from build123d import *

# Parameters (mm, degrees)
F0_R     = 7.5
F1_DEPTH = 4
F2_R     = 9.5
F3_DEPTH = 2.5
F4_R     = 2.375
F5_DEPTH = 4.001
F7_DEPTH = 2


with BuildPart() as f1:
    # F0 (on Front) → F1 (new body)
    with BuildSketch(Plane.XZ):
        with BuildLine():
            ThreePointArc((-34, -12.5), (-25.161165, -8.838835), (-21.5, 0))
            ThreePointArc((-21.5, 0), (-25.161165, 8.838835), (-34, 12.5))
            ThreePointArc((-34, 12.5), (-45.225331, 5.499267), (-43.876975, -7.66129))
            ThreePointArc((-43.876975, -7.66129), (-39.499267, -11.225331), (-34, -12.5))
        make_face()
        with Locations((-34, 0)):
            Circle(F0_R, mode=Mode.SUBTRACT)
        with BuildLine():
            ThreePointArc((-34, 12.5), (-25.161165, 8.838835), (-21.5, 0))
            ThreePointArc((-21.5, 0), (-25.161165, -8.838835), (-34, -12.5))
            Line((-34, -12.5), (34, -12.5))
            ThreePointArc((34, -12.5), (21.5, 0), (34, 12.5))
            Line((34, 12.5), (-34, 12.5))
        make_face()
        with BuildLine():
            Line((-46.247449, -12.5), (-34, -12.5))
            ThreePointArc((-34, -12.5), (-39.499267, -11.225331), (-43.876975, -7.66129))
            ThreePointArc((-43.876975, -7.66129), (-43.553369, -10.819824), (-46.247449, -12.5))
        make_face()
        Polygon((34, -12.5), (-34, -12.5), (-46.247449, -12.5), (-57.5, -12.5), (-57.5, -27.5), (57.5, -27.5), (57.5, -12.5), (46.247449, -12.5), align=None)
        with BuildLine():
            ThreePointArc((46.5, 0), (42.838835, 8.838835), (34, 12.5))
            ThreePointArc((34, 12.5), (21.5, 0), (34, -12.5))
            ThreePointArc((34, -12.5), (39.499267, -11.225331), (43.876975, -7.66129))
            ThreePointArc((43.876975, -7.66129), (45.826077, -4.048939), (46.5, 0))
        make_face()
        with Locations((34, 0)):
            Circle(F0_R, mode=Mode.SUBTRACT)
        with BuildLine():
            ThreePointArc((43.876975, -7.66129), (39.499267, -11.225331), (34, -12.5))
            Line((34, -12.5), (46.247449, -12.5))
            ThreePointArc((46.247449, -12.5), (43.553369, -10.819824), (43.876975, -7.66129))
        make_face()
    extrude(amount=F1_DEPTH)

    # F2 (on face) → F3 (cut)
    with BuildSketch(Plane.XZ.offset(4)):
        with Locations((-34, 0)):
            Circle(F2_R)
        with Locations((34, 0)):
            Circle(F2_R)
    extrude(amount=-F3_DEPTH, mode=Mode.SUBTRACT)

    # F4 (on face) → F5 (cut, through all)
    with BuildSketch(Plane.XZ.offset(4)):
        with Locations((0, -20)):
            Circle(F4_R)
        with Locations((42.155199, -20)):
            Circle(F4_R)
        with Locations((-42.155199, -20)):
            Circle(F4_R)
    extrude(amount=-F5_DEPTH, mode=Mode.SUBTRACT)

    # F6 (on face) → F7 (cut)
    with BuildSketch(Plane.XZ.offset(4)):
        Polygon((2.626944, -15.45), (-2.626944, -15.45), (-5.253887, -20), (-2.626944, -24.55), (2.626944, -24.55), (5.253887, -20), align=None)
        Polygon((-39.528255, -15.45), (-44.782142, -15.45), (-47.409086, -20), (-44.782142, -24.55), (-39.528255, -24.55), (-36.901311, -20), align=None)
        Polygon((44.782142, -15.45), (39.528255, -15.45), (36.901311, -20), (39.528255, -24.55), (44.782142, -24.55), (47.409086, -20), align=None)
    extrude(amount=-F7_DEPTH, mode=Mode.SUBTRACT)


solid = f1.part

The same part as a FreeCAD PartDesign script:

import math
import FreeCAD as App
import Part
import Sketcher

V = App.Vector
Q = App.Units.Quantity


def add_polygon(sketch, points):
    """Adds a closed chain of lines whose ends are joined by coincident constraints."""
    first, n = sketch.GeometryCount, len(points)
    for a, b in zip(points, points[1:] + points[:1]):
        sketch.addGeometry(Part.LineSegment(App.Vector(*a, 0), App.Vector(*b, 0)), False)
    for i in range(n):
        sketch.addConstraint(Sketcher.Constraint("Coincident", first + i, 2, first + (i + 1) % n, 1))

doc = App.newDocument("Part")
body = doc.addObject("PartDesign::Body", "Body")

sketch1 = doc.addObject("Sketcher::SketchObject", "Sketch")
body.addObject(sketch1)
sketch1.AttachmentSupport = (doc.XZ_Plane, [""])
sketch1.MapMode = "FlatFace"
sketch1.addGeometry(Part.LineSegment(V(34, 12.5, 0), V(-34, 12.5, 0)), False)
sketch1.addGeometry(Part.ArcOfCircle(Part.Circle(V(-34, 0, 0), V(0, 0, 1), 12.5), math.radians(90), math.radians(218)), False)
sketch1.addGeometry(Part.ArcOfCircle(Part.Circle(V(-46.2, -9.5, 0), V(0, 0, 1), 3), math.radians(-90), math.radians(38)), False)
sketch1.addGeometry(Part.LineSegment(V(-46.2, -12.5, 0), V(-57.5, -12.5, 0)), False)
sketch1.addGeometry(Part.LineSegment(V(-57.5, -12.5, 0), V(-57.5, -27.5, 0)), False)
sketch1.addGeometry(Part.LineSegment(V(-57.5, -27.5, 0), V(57.5, -27.5, 0)), False)
sketch1.addGeometry(Part.LineSegment(V(57.5, -27.5, 0), V(57.5, -12.5, 0)), False)
sketch1.addGeometry(Part.LineSegment(V(57.5, -12.5, 0), V(46.2, -12.5, 0)), False)
sketch1.addGeometry(Part.ArcOfCircle(Part.Circle(V(46.2, -9.5, 0), V(0, 0, 1), 3), math.radians(142), math.radians(270)), False)
sketch1.addGeometry(Part.ArcOfCircle(Part.Circle(V(34, 0, 0), V(0, 0, 1), 12.5), math.radians(-38), math.radians(0)), False)
sketch1.addGeometry(Part.ArcOfCircle(Part.Circle(V(34, 0, 0), V(0, 0, 1), 12.5), math.radians(0), math.radians(90)), False)
sketch1.addGeometry(Part.Circle(V(-34, 0, 0), V(0, 0, 1), 7.5), False)
sketch1.addGeometry(Part.Circle(V(34, 0, 0), V(0, 0, 1), 7.5), False)
sketch1.addConstraint(Sketcher.Constraint("Tangent", 0, 2, 1, 1))
sketch1.addConstraint(Sketcher.Constraint("Tangent", 1, 2, 2, 2))
sketch1.addConstraint(Sketcher.Constraint("Tangent", 2, 1, 3, 1))
sketch1.addConstraint(Sketcher.Constraint("Coincident", 3, 2, 4, 1))
sketch1.addConstraint(Sketcher.Constraint("Coincident", 4, 2, 5, 1))
sketch1.addConstraint(Sketcher.Constraint("Coincident", 5, 2, 6, 1))
sketch1.addConstraint(Sketcher.Constraint("Coincident", 6, 2, 7, 1))
sketch1.addConstraint(Sketcher.Constraint("Tangent", 7, 2, 8, 2))
sketch1.addConstraint(Sketcher.Constraint("Tangent", 8, 1, 9, 1))
sketch1.addConstraint(Sketcher.Constraint("Tangent", 9, 2, 10, 1))
sketch1.addConstraint(Sketcher.Constraint("Tangent", 10, 2, 0, 1))
sketch1.addConstraint(Sketcher.Constraint("Horizontal", 0))
sketch1.addConstraint(Sketcher.Constraint("Horizontal", 3))
sketch1.addConstraint(Sketcher.Constraint("Vertical", 4))
sketch1.addConstraint(Sketcher.Constraint("Horizontal", 5))
sketch1.addConstraint(Sketcher.Constraint("Vertical", 6))
sketch1.addConstraint(Sketcher.Constraint("Horizontal", 7))
sketch1.addConstraint(Sketcher.Constraint("Coincident", 11, 3, 1, 3))
sketch1.addConstraint(Sketcher.Constraint("Coincident", 12, 3, 9, 3))
sketch1.addConstraint(Sketcher.Constraint("Equal", 2, 8))
sketch1.addConstraint(Sketcher.Constraint("Equal", 1, 10))
sketch1.addConstraint(Sketcher.Constraint("Equal", 11, 12))
sketch1.addConstraint(Sketcher.Constraint("Symmetric", 1, 3, 9, 3, -1, 1))
sketch1.addConstraint(Sketcher.Constraint("Symmetric", 2, 3, 8, 3, -2))
sketch1.addConstraint(Sketcher.Constraint("PointOnObject", 9, 2, -1))
sketch1.addConstraint(Sketcher.Constraint("Equal", 3, 7))
sketch1.addConstraint(Sketcher.Constraint("Diameter", 11, Q("15 mm")))
sketch1.addConstraint(Sketcher.Constraint("Radius", 2, Q("3 mm")))
sketch1.addConstraint(Sketcher.Constraint("Radius", 1, Q("12.5 mm")))
sketch1.addConstraint(Sketcher.Constraint("DistanceX", 0, 2, 0, 1, Q("68 mm")))
sketch1.addConstraint(Sketcher.Constraint("DistanceX", 5, 1, 5, 2, Q("115 mm")))
sketch1.addConstraint(Sketcher.Constraint("DistanceY", 4, 2, 4, 1, Q("15 mm")))
sketch1.addConstraint(Sketcher.Constraint("DistanceY", 2, 3, 0, 2, Q("22 mm")))
pad1 = doc.addObject("PartDesign::Pad", "Pad")
body.addObject(pad1)
pad1.Profile = sketch1
pad1.Length = 4

sketch2 = doc.addObject("Sketcher::SketchObject", "Sketch001")
body.addObject(sketch2)
sketch2.AttachmentSupport = (doc.XZ_Plane, [""])
sketch2.MapMode = "FlatFace"
sketch2.AttachmentOffset = App.Placement(V(0, 0, 4), App.Rotation())
sketch2.addGeometry(Part.Circle(V(-34, 0, 0), V(0, 0, 1), 10), False)
sketch2.addGeometry(Part.Circle(V(34, 0, 0), V(0, 0, 1), 10), False)
sketch2.addConstraint(Sketcher.Constraint("Equal", 0, 1))
sketch2.addConstraint(Sketcher.Constraint("Symmetric", 0, 3, 1, 3, -1, 1))
sketch2.addConstraint(Sketcher.Constraint("PointOnObject", 0, 3, -1))
sketch2.addConstraint(Sketcher.Constraint("Diameter", 0, Q("19 mm")))
sketch2.addConstraint(Sketcher.Constraint("DistanceX", 0, 3, -1, 1, Q("34 mm")))
pocket1 = doc.addObject("PartDesign::Pocket", "Pocket")
body.addObject(pocket1)
pocket1.Profile = sketch2
pocket1.Length = 2.5

sketch3 = doc.addObject("Sketcher::SketchObject", "Sketch002")
body.addObject(sketch3)
sketch3.AttachmentSupport = (doc.XZ_Plane, [""])
sketch3.MapMode = "FlatFace"
sketch3.AttachmentOffset = App.Placement(V(0, 0, 4), App.Rotation())
sketch3.addGeometry(Part.Circle(V(0, -20, 0), V(0, 0, 1), 2.4), False)
sketch3.addGeometry(Part.Circle(V(42.2, -20, 0), V(0, 0, 1), 2.4), False)
sketch3.addGeometry(Part.Circle(V(-42.2, -20, 0), V(0, 0, 1), 2.4), False)
sketch3.addConstraint(Sketcher.Constraint("Equal", 0, 1))
sketch3.addConstraint(Sketcher.Constraint("Equal", 1, 2))
sketch3.addConstraint(Sketcher.Constraint("Symmetric", 1, 3, 2, 3, -2))
sketch3.addConstraint(Sketcher.Constraint("PointOnObject", 0, 3, -2))
sketch3.addConstraint(Sketcher.Constraint("Horizontal", 0, 3, 1, 3))
sketch3.addConstraint(Sketcher.Constraint("Diameter", 0, Q("4.75 mm")))
sketch3.addConstraint(Sketcher.Constraint("DistanceY", 0, 3, -1, 1, Q("20 mm")))
sketch3.addConstraint(Sketcher.Constraint("DistanceX", -1, 1, 1, 3, Q("42.155199 mm")))
pocket2 = doc.addObject("PartDesign::Pocket", "Pocket001")
body.addObject(pocket2)
pocket2.Profile = sketch3
pocket2.Type = "ThroughAll"

sketch4 = doc.addObject("Sketcher::SketchObject", "Sketch003")
body.addObject(sketch4)
sketch4.AttachmentSupport = (doc.XZ_Plane, [""])
sketch4.MapMode = "FlatFace"
sketch4.AttachmentOffset = App.Placement(V(0, 0, 4), App.Rotation())
add_polygon(sketch4, [(3, -15), (-3, -15), (-5, -20), (-3, -25), (3, -25), (5, -20)])
add_polygon(sketch4, [(-40, -15), (-45, -15), (-47, -20), (-45, -25), (-40, -25), (-37, -20)])
add_polygon(sketch4, [(45, -15), (40, -15), (37, -20), (40, -25), (45, -25), (47, -20)])
sketch4.addConstraint(Sketcher.Constraint("Horizontal", 0))
sketch4.addConstraint(Sketcher.Constraint("Horizontal", 3))
sketch4.addConstraint(Sketcher.Constraint("Horizontal", 6))
sketch4.addConstraint(Sketcher.Constraint("Horizontal", 9))
sketch4.addConstraint(Sketcher.Constraint("Horizontal", 12))
sketch4.addConstraint(Sketcher.Constraint("Horizontal", 15))
sketch4.addConstraint(Sketcher.Constraint("Symmetric", 1, 2, 4, 2, -2))
sketch4.addConstraint(Sketcher.Constraint("Symmetric", 11, 2, 12, 2, -2))
sketch4.addConstraint(Sketcher.Constraint("Symmetric", 10, 2, 13, 2, -2))
sketch4.addConstraint(Sketcher.Constraint("Symmetric", 9, 2, 14, 2, -2))
sketch4.addConstraint(Sketcher.Constraint("Symmetric", 7, 2, 16, 2, -2))
sketch4.addConstraint(Sketcher.Constraint("Parallel", 1, 4))
sketch4.addConstraint(Sketcher.Constraint("Parallel", 2, 5))
sketch4.addConstraint(Sketcher.Constraint("Parallel", 4, 7))
sketch4.addConstraint(Sketcher.Constraint("Parallel", 5, 8))
sketch4.addConstraint(Sketcher.Constraint("Parallel", 7, 10))
sketch4.addConstraint(Sketcher.Constraint("Parallel", 8, 11))
sketch4.addConstraint(Sketcher.Constraint("Parallel", 10, 13))
sketch4.addConstraint(Sketcher.Constraint("Parallel", 13, 16))
sketch4.addConstraint(Sketcher.Constraint("Parallel", 14, 17))
sketch4.addConstraint(Sketcher.Constraint("Horizontal", 5, 2, 6, 2))
sketch4.addConstraint(Sketcher.Constraint("Horizontal", 4, 2, 7, 2))
sketch4.addConstraint(Sketcher.Constraint("Horizontal", 3, 2, 8, 2))
sketch4.addConstraint(Sketcher.Constraint("Horizontal", 7, 2, 10, 2))
sketch4.addConstraint(Sketcher.Constraint("Vertical", 0, 2, 2, 2))
sketch4.addConstraint(Sketcher.Constraint("Equal", 3, 6))
sketch4.addConstraint(Sketcher.Constraint("Angle", 1, Q("-119.999993 deg")))
sketch4.addConstraint(Sketcher.Constraint("DistanceY", 1, 2, -1, 1, Q("20 mm")))
sketch4.addConstraint(Sketcher.Constraint("DistanceY", 2, 2, 0, 2, Q("9.1 mm")))
sketch4.addConstraint(Sketcher.Constraint("DistanceX", 7, 2, 1, 2, Q("42.155199 mm")))
sketch4.addConstraint(Sketcher.Constraint("DistanceX", 0, 2, 0, 1, Q("5.253888 mm")))
pocket3 = doc.addObject("PartDesign::Pocket", "Pocket002")
body.addObject(pocket3)
pocket3.Profile = sketch4
pocket3.Length = 2

doc.recompute()
